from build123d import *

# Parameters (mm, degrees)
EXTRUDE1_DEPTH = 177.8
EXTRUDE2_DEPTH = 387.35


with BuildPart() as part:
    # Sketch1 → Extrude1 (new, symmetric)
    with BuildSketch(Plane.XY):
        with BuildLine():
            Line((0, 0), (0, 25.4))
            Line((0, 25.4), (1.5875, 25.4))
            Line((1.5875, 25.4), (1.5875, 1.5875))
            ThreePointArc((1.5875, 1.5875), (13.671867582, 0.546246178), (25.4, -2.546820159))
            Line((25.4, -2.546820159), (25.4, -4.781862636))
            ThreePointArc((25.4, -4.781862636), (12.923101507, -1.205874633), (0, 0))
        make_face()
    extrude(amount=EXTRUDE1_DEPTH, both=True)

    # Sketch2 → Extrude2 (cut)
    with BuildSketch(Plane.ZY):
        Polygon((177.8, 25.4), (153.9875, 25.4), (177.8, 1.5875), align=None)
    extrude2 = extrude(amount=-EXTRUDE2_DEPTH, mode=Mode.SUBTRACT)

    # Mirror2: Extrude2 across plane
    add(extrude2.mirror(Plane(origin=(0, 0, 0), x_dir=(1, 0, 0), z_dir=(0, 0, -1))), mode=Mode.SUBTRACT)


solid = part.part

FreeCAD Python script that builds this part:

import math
import FreeCAD as App
import Part
import Sketcher
from FreeCAD import Vector
Q = App.Units.Quantity

doc = App.newDocument("Part")
body = doc.addObject("PartDesign::Body", "Body")

# Sketch on XY plane
sketch1 = body.newObject("Sketcher::SketchObject", "Sketch")
sketch1.AttachmentSupport = (doc.getObject("XY_Plane"), [""])
sketch1.MapMode = "FlatFace"
sketch1.addGeometry(Part.LineSegment(Vector(0, 25.4, 0), Vector(0, 0, 0)), False)
sketch1.addGeometry(Part.ArcOfCircle(Part.Circle(Vector(0, -69.9, 0), Vector(0, 0, 1), 69.9), math.radians(69), math.radians(90)), False)
sketch1.addGeometry(Part.LineSegment(Vector(25.4, -4.8, 0), Vector(25.4, -2.5, 0)), False)
sketch1.addGeometry(Part.ArcOfCircle(Part.Circle(Vector(1.6, -69.1, 0), Vector(0, 0, 1), 70.6), math.radians(70.3), math.radians(90)), False)
sketch1.addGeometry(Part.LineSegment(Vector(1.6, 1.6, 0), Vector(1.6, 25.4, 0)), False)
sketch1.addGeometry(Part.LineSegment(Vector(1.6, 25.4, 0), Vector(0, 25.4, 0)), False)
sketch1.addConstraint(Sketcher.Constraint("Coincident", 0, 2, 1, 2))
sketch1.addConstraint(Sketcher.Constraint("Coincident", 1, 1, 2, 1))
sketch1.addConstraint(Sketcher.Constraint("Coincident", 2, 2, 3, 1))
sketch1.addConstraint(Sketcher.Constraint("Coincident", 3, 2, 4, 1))
sketch1.addConstraint(Sketcher.Constraint("Coincident", 4, 2, 5, 1))
sketch1.addConstraint(Sketcher.Constraint("Coincident", 5, 2, 0, 1))
sketch1.addConstraint(Sketcher.Constraint("Vertical", 0))
sketch1.addConstraint(Sketcher.Constraint("Vertical", 2))
sketch1.addConstraint(Sketcher.Constraint("Vertical", 4))
sketch1.addConstraint(Sketcher.Constraint("Horizontal", 5))
sketch1.addConstraint(Sketcher.Constraint("Coincident", 0, 2, -1, 1))
sketch1.addConstraint(Sketcher.Constraint("PointOnObject", 1, 3, -2))
sketch1.addConstraint(Sketcher.Constraint("DistanceY", 0, 2, 0, 1, Q("1 in")))
sketch1.addConstraint(Sketcher.Constraint("Radius", 1, Q("2.75 in")))
sketch1.addConstraint(Sketcher.Constraint("DistanceX", -1, 1, 1, 1, Q("1 in")))
sketch1.addConstraint(Sketcher.Constraint("Radius", 3, Q("2.78125 in")))
sketch1.addConstraint(Sketcher.Constraint("DistanceX", 5, 2, 5, 1, Q("0.0625 in")))
sketch1.addConstraint(Sketcher.Constraint("DistanceY", 4, 1, 4, 2, Q("0.9375 in")))
sketch1.addConstraint(Sketcher.Constraint("DistanceX", -1, 1, 3, 3, Q("0.0625 in")))
pad1 = body.newObject("PartDesign::Pad", "Pad")
pad1.Profile = sketch1
pad1.Length = Q("14 in")
pad1.Midplane = True

# Sketch on YZ plane
sketch2 = body.newObject("Sketcher::SketchObject", "Sketch001")
sketch2.AttachmentSupport = (doc.getObject("YZ_Plane"), [""])
sketch2.MapMode = "FlatFace"
sketch2.addGeometry(Part.LineSegment(Vector(25, 178, 0), Vector(25, 154, 0)), False)
sketch2.addGeometry(Part.LineSegment(Vector(25, 154, 0), Vector(2, 178, 0)), False)
sketch2.addGeometry(Part.LineSegment(Vector(2, 178, 0), Vector(25, 178, 0)), False)
sketch2.addConstraint(Sketcher.Constraint("Coincident", 0, 2, 1, 1))
sketch2.addConstraint(Sketcher.Constraint("Coincident", 1, 2, 2, 1))
sketch2.addConstraint(Sketcher.Constraint("Coincident", 2, 2, 0, 1))
sketch2.addConstraint(Sketcher.Constraint("Vertical", 0))
sketch2.addConstraint(Sketcher.Constraint("Horizontal", 2))
sketch2.addConstraint(Sketcher.Constraint("Equal", 2, 0))
sketch2.addConstraint(Sketcher.Constraint("DistanceX", -1, 1, 0, 2, Q("1 in")))
sketch2.addConstraint(Sketcher.Constraint("DistanceY", -1, 1, 1, 2, Q("7 in")))
sketch2.addConstraint(Sketcher.Constraint("DistanceX", 2, 1, 2, 2, Q("0.9375 in")))
pocket1 = body.newObject("PartDesign::Pocket", "Pocket")
pocket1.Profile = sketch2
pocket1.Length = Q("15.25 in")
pocket1.Reversed = True
doc.recompute()

mirrored = body.newObject("PartDesign::Mirrored", "Mirrored")
mirrored.Originals = [pocket1]
mirrored.MirrorPlane = (doc.getObject("XY_Plane"), [""])
body.Tip = mirrored

doc.recompute()
